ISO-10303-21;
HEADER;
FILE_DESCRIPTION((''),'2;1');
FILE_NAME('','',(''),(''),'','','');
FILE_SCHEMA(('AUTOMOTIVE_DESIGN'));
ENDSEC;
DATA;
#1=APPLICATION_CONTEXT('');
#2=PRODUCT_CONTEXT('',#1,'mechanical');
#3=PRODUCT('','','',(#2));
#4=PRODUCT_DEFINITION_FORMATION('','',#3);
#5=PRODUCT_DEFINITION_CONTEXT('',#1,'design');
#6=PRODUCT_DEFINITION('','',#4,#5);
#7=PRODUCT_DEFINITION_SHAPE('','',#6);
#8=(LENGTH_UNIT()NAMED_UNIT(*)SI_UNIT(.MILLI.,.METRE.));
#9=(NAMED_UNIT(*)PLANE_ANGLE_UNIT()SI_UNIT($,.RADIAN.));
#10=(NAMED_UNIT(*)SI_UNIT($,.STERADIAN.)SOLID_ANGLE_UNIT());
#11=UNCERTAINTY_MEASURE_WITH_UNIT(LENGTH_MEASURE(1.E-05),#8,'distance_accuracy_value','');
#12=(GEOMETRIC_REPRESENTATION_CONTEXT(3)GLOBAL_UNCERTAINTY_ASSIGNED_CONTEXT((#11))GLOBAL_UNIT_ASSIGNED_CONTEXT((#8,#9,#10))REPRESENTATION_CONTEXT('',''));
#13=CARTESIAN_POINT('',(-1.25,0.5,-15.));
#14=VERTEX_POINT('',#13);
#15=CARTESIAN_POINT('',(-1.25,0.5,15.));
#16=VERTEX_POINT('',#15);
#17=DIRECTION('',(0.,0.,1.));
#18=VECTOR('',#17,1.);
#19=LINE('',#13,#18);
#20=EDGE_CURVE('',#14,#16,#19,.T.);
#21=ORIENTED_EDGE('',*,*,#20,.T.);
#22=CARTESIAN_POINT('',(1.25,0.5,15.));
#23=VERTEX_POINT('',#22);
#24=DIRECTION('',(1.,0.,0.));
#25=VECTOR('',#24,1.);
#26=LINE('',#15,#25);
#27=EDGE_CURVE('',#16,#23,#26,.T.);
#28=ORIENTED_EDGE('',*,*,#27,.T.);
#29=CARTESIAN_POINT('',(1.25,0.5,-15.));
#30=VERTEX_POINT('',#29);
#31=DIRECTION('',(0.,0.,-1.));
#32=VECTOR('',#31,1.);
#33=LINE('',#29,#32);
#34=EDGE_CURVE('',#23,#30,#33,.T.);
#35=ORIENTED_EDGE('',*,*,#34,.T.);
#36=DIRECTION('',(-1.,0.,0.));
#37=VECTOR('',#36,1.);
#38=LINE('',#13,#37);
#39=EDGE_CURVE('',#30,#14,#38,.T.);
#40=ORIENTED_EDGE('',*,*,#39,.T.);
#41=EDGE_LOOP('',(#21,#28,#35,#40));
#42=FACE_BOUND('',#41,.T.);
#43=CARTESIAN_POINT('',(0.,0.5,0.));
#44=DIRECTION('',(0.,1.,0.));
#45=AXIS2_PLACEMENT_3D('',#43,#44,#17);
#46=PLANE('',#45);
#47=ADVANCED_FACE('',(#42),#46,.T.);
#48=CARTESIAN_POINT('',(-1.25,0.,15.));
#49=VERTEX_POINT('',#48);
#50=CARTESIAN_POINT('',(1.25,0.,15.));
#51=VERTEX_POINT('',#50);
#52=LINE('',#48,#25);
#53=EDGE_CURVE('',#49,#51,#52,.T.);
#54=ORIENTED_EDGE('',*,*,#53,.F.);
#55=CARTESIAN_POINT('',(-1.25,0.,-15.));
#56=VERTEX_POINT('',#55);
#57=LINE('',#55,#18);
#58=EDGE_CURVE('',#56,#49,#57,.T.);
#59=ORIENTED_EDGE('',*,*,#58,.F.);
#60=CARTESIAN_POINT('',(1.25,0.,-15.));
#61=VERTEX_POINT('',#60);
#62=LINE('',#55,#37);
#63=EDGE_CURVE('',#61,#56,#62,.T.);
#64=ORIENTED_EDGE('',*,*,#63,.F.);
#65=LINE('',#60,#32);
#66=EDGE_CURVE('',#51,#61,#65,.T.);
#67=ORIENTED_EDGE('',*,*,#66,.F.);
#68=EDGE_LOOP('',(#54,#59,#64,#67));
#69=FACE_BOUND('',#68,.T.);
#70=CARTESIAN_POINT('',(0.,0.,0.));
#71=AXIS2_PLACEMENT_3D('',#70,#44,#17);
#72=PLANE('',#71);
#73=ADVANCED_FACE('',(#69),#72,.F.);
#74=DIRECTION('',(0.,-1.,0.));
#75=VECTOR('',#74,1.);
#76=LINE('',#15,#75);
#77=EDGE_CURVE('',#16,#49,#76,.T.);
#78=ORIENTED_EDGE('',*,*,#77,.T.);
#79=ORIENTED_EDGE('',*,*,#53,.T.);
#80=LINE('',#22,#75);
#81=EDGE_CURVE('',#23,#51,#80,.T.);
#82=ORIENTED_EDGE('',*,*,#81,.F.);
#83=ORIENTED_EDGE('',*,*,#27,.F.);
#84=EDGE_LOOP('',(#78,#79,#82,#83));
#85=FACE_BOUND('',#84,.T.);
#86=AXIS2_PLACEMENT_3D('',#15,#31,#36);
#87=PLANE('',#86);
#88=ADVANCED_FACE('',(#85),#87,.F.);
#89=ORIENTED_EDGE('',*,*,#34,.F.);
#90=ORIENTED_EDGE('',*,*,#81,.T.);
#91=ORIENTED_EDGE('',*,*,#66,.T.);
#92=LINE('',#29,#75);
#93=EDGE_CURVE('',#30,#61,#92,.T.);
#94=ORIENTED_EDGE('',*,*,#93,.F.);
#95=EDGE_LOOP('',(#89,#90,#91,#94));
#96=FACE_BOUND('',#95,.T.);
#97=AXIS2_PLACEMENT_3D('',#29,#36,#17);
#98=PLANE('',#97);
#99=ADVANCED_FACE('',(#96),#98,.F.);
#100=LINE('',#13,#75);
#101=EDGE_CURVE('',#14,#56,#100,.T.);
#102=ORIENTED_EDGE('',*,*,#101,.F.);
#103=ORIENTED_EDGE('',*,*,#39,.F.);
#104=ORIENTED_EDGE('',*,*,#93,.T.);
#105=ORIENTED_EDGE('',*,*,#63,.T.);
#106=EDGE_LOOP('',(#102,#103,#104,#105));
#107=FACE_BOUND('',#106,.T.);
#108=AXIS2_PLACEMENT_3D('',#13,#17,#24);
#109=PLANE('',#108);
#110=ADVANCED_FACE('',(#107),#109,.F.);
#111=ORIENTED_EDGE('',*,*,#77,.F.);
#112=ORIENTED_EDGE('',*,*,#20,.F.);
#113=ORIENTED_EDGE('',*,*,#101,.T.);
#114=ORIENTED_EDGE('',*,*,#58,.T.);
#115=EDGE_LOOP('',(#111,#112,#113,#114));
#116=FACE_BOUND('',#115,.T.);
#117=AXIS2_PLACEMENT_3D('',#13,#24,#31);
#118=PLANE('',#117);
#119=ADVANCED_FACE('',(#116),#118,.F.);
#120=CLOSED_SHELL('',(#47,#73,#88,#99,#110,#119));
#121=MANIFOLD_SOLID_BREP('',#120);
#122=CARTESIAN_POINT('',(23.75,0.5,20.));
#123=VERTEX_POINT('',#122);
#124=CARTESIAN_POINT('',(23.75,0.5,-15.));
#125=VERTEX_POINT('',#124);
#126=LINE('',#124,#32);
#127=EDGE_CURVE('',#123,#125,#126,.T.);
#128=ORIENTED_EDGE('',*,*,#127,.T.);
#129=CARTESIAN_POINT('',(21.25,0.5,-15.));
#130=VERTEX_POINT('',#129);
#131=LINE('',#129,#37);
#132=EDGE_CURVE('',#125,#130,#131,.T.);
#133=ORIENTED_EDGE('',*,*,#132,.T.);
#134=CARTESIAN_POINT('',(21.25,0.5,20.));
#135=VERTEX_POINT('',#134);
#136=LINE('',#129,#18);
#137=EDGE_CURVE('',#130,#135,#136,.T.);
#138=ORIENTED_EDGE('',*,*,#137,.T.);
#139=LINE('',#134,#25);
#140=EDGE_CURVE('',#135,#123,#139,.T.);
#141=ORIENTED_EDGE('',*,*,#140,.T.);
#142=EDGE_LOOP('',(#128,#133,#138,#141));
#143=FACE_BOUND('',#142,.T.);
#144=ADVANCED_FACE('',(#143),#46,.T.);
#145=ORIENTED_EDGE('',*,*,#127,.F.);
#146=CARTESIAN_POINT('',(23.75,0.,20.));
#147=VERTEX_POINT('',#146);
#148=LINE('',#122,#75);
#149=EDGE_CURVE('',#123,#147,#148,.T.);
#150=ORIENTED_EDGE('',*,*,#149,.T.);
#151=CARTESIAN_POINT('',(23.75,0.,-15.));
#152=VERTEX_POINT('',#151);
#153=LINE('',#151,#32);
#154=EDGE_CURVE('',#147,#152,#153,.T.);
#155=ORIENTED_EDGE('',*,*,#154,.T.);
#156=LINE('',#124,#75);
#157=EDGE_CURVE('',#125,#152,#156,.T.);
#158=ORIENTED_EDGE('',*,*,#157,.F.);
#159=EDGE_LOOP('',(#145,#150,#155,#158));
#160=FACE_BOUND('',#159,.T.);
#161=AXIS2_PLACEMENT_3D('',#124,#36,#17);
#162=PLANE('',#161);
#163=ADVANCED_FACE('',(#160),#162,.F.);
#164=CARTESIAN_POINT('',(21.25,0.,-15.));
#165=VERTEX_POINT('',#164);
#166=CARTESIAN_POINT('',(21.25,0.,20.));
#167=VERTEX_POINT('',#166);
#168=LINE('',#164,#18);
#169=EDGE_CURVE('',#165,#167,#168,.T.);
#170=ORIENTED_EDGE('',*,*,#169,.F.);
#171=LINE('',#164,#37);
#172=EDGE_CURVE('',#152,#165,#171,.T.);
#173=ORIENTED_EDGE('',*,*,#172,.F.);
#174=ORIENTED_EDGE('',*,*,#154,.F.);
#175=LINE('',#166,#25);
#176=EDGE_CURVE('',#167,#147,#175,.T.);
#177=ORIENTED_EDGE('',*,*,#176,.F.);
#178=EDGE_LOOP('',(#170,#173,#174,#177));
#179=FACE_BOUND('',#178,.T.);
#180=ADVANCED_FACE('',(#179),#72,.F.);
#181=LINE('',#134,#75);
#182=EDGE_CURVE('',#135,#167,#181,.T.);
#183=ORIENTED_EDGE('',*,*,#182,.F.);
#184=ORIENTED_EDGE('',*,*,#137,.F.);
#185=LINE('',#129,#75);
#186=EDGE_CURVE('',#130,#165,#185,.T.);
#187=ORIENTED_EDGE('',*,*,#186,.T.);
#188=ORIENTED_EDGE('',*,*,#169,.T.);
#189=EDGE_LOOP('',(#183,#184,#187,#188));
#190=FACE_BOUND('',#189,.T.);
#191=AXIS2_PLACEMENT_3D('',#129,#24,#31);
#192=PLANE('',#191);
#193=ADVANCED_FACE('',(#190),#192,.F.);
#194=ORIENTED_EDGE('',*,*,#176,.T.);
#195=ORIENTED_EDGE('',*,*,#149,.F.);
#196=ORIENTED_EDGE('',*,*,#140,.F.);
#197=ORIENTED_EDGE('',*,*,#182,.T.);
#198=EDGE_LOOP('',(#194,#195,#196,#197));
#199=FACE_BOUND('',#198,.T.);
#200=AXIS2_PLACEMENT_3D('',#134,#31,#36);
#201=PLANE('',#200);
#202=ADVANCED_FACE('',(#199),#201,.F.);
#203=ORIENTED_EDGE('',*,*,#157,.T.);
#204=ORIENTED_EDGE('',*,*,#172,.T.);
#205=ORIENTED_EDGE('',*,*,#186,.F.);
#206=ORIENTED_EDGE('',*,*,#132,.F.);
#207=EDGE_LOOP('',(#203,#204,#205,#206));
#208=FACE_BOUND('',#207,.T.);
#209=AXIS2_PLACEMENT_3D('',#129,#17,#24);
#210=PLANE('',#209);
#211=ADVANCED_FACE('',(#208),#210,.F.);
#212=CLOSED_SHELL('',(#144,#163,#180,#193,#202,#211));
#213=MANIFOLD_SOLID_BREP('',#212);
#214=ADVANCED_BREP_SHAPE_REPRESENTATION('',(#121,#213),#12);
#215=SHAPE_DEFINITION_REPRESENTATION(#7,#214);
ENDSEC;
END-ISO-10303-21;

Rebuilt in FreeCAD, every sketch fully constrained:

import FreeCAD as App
import Part
import Sketcher
from FreeCAD import Vector

doc = App.newDocument("Part")
body = doc.addObject("PartDesign::Body", "Body")

# Sketch on XZ plane
sketch1 = body.newObject("Sketcher::SketchObject", "Sketch")
sketch1.AttachmentSupport = (doc.getObject("XZ_Plane"), [""])
sketch1.MapMode = "FlatFace"
sketch1.addGeometry(Part.LineSegment(Vector(21.25, -15, 0), Vector(21.25, 20, 0)), False)
sketch1.addGeometry(Part.LineSegment(Vector(21.25, 20, 0), Vector(23.75, 20, 0)), False)
sketch1.addGeometry(Part.LineSegment(Vector(23.75, 20, 0), Vector(23.75, -15, 0)), False)
sketch1.addGeometry(Part.LineSegment(Vector(23.75, -15, 0), Vector(21.25, -15, 0)), False)
sketch1.addConstraint(Sketcher.Constraint("Coincident", 0, 2, 1, 1))
sketch1.addConstraint(Sketcher.Constraint("Coincident", 1, 2, 2, 1))
sketch1.addConstraint(Sketcher.Constraint("Coincident", 2, 2, 3, 1))
sketch1.addConstraint(Sketcher.Constraint("Coincident", 3, 2, 0, 1))
sketch1.addConstraint(Sketcher.Constraint("Vertical", 0))
sketch1.addConstraint(Sketcher.Constraint("Horizontal", 1))
sketch1.addConstraint(Sketcher.Constraint("Vertical", 2))
sketch1.addConstraint(Sketcher.Constraint("Horizontal", 3))
sketch1.addConstraint(Sketcher.Constraint("DistanceY", 0, 1, 0, 2, 35.0))
sketch1.addConstraint(Sketcher.Constraint("DistanceX", 1, 1, 1, 2, 2.5))
sketch1.addConstraint(Sketcher.Constraint("DistanceY", -1, 1, 0, 2, 20.0))
sketch1.addConstraint(Sketcher.Constraint("DistanceX", -1, 1, 0, 2, 21.25))
pad1 = body.newObject("PartDesign::Pad", "Pad")
pad1.Profile = sketch1
pad1.Length = 0.5
pad1.Reversed = True
body2 = doc.addObject("PartDesign::Body", "Body001")

# Sketch on XZ plane
sketch2 = body2.newObject("Sketcher::SketchObject", "Sketch001")
sketch2.AttachmentSupport = (doc.getObject("XZ_Plane001"), [""])
sketch2.MapMode = "FlatFace"
sketch2.addGeometry(Part.LineSegment(Vector(-1.25, -15, 0), Vector(-1.25, 15, 0)), False)
sketch2.addGeometry(Part.LineSegment(Vector(-1.25, 15, 0), Vector(1.25, 15, 0)), False)
sketch2.addGeometry(Part.LineSegment(Vector(1.25, 15, 0), Vector(1.25, -15, 0)), False)
sketch2.addGeometry(Part.LineSegment(Vector(1.25, -15, 0), Vector(-1.25, -15, 0)), False)
sketch2.addConstraint(Sketcher.Constraint("Coincident", 0, 2, 1, 1))
sketch2.addConstraint(Sketcher.Constraint("Coincident", 1, 2, 2, 1))
sketch2.addConstraint(Sketcher.Constraint("Coincident", 2, 2, 3, 1))
sketch2.addConstraint(Sketcher.Constraint("Coincident", 3, 2, 0, 1))
sketch2.addConstraint(Sketcher.Constraint("Vertical", 0))
sketch2.addConstraint(Sketcher.Constraint("Horizontal", 1))
sketch2.addConstraint(Sketcher.Constraint("Vertical", 2))
sketch2.addConstraint(Sketcher.Constraint("Horizontal", 3))
sketch2.addConstraint(Sketcher.Constraint("Symmetric", 0, 2, 2, 2, -1, 1))
sketch2.addConstraint(Sketcher.Constraint("DistanceY", 0, 1, 0, 2, 30.0))
sketch2.addConstraint(Sketcher.Constraint("DistanceX", 1, 1, 1, 2, 2.5))
pad2 = body2.newObject("PartDesign::Pad", "Pad001")
pad2.Profile = sketch2
pad2.Length = 0.5
pad2.Reversed = True

doc.recompute()
